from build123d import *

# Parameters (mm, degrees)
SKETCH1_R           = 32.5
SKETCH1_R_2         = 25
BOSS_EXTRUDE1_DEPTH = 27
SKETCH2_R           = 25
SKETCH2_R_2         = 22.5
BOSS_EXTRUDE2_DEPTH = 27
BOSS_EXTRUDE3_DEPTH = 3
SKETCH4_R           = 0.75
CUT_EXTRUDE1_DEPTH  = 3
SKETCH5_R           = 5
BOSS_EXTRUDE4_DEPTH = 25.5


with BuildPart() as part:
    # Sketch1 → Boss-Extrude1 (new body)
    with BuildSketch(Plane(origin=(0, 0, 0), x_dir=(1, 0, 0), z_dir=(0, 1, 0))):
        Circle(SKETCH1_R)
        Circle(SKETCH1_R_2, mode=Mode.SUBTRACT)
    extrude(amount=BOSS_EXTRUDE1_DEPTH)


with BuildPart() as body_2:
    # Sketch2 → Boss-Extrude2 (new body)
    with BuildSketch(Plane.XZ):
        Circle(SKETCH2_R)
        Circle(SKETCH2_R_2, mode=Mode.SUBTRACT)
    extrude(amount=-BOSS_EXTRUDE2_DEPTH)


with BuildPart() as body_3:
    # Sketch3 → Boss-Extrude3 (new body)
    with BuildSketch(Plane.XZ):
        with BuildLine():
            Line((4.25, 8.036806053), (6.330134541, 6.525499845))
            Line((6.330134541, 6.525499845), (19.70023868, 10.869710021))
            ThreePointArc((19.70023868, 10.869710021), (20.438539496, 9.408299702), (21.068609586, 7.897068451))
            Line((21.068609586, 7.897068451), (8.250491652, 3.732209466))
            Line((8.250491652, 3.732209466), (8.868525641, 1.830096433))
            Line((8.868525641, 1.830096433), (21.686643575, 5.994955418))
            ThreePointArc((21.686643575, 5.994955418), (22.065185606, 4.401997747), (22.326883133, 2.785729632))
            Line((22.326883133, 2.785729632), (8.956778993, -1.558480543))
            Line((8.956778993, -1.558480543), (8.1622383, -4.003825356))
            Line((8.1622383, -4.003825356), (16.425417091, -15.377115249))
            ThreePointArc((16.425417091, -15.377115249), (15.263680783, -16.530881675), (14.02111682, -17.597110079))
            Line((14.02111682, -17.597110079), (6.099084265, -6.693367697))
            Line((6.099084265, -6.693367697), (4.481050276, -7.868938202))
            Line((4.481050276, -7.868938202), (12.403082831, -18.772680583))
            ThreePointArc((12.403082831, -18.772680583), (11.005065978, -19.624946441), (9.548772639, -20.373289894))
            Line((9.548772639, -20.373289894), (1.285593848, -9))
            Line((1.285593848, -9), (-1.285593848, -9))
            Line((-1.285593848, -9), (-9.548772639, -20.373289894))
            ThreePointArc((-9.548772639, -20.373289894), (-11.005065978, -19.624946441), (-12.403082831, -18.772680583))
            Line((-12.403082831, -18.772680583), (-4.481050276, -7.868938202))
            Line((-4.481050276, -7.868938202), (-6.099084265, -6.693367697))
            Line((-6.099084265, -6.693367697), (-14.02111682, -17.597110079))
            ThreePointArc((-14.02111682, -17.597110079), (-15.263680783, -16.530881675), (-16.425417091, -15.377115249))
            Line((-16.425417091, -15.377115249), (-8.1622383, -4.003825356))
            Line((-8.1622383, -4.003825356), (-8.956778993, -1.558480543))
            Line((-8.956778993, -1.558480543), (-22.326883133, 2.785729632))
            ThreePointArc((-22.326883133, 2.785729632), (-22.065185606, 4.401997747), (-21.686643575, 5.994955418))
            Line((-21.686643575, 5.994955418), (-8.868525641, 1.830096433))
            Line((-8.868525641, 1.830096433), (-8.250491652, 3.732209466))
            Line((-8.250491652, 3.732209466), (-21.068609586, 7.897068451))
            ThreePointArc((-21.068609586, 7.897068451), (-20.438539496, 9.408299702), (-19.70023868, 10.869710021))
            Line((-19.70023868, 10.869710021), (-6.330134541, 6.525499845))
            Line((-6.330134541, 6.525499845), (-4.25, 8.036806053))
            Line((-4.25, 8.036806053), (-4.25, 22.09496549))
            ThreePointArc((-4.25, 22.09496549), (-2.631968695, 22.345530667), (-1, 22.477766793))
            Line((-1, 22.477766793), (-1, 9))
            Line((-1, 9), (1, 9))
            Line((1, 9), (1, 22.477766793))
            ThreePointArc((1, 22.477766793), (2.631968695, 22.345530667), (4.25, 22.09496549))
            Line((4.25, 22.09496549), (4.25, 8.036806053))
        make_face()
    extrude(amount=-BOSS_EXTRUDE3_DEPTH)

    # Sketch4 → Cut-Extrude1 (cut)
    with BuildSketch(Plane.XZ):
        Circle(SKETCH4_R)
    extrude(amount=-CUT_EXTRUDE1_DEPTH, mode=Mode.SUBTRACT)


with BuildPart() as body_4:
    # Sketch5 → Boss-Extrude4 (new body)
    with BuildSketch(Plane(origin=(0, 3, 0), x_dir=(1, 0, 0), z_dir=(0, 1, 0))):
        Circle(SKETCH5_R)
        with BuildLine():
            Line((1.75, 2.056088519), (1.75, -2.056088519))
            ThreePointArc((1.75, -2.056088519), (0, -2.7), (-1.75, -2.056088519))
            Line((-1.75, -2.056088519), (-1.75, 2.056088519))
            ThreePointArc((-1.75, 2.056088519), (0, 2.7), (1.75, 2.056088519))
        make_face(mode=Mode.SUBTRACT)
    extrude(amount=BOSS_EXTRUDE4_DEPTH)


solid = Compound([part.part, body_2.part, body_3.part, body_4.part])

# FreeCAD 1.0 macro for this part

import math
import FreeCAD as App
import Part
import Sketcher

V = App.Vector
Q = App.Units.Quantity

doc = App.newDocument("Part")
params = doc.addObject("Spreadsheet::Sheet", "Params")
for row, (alias, value) in enumerate([
    ("sketch1_diameter", "65 mm"),
    ("sketch1_diameter2", "50 mm"),
    ("pad1_length", "27 mm"),
    ("sketch2_diameter", "50 mm"),
    ("sketch2_diameter2", "45 mm"),
    ("pad2_length", "27 mm"),
    ("sketch3_radius", "22.5 mm"),
    ("sketch3_width", "2 mm"),
    ("sketch3_length", "2 mm"),
    ("pad3_length", "3 mm"),
    ("sketch4_diameter", "1.5 mm"),
    ("pocket1_length", "3 mm"),
    ("sketch5_diameter", "10 mm"),
    ("sketch5_radius", "2.7 mm"),
    ("pad4_length", "25.5 mm"),
], start=1):
    params.set(f"A{row}", alias)
    params.set(f"B{row}", "=" + value)
    params.setAlias(f"B{row}", alias)

body = doc.addObject("PartDesign::Body", "Body")

# Sketch on XZ plane
sketch1 = body.newObject("Sketcher::SketchObject", "Sketch")
sketch1.AttachmentSupport = (doc.getObject("XZ_Plane"), [""])
sketch1.MapMode = "FlatFace"
sketch1.addGeometry(Part.Circle(V(0, 0, 0), V(0, 0, 1), 32), False)
sketch1.addGeometry(Part.Circle(V(0, 0, 0), V(0, 0, 1), 25), False)
sketch1.addConstraint(Sketcher.Constraint("Coincident", 0, 3, -1, 1))
sketch1.addConstraint(Sketcher.Constraint("Coincident", 1, 3, -1, 1))
sketch1.addConstraint(Sketcher.Constraint("Diameter", 0, 65.0))
sketch1.addConstraint(Sketcher.Constraint("Diameter", 1, 50.0))
sketch1.setExpression("Constraints[2]", "Params.sketch1_diameter")
sketch1.setExpression("Constraints[3]", "Params.sketch1_diameter2")
pad1 = body.newObject("PartDesign::Pad", "Pad")
pad1.Profile = sketch1
pad1.setExpression("Length", "Params.pad1_length")
pad1.Reversed = True
body2 = doc.addObject("PartDesign::Body", "Body001")

# Sketch on XZ plane
sketch2 = body2.newObject("Sketcher::SketchObject", "Sketch001")
sketch2.AttachmentSupport = (doc.getObject("XZ_Plane001"), [""])
sketch2.MapMode = "FlatFace"
sketch2.addGeometry(Part.Circle(V(0, 0, 0), V(0, 0, 1), 25), False)
sketch2.addGeometry(Part.Circle(V(0, 0, 0), V(0, 0, 1), 22), False)
sketch2.addConstraint(Sketcher.Constraint("Coincident", 0, 3, -1, 1))
sketch2.addConstraint(Sketcher.Constraint("Coincident", 1, 3, -1, 1))
sketch2.addConstraint(Sketcher.Constraint("Diameter", 0, 50.0))
sketch2.addConstraint(Sketcher.Constraint("Diameter", 1, 45.0))
sketch2.setExpression("Constraints[2]", "Params.sketch2_diameter")
sketch2.setExpression("Constraints[3]", "Params.sketch2_diameter2")
pad2 = body2.newObject("PartDesign::Pad", "Pad001")
pad2.Profile = sketch2
pad2.setExpression("Length", "Params.pad2_length")
pad2.Reversed = True
body3 = doc.addObject("PartDesign::Body", "Body002")

# Sketch on XZ plane
sketch3 = body3.newObject("Sketcher::SketchObject", "Sketch002")
sketch3.AttachmentSupport = (doc.getObject("XZ_Plane002"), [""])
sketch3.MapMode = "FlatFace"
sketch3.addGeometry(Part.LineSegment(V(6.3, 6.5, 0), V(4.2, 8, 0)), False)
sketch3.addGeometry(Part.LineSegment(V(4.2, 8, 0), V(4.2, 22.1, 0)), False)
sketch3.addGeometry(Part.ArcOfCircle(Part.Circle(V(0, 0, 0), V(0, 0, 1), 22.5), math.radians(79.11), math.radians(87.45)), False)
sketch3.addGeometry(Part.LineSegment(V(1, 22.5, 0), V(1, 9, 0)), False)
sketch3.addGeometry(Part.LineSegment(V(1, 9, 0), V(-1, 9, 0)), False)
sketch3.addGeometry(Part.LineSegment(V(-1, 9, 0), V(-1, 22.5, 0)), False)
sketch3.addGeometry(Part.ArcOfCircle(Part.Circle(V(0, 0, 0), V(0, 0, 1), 22.5), math.radians(92.55), math.radians(100.89)), False)
sketch3.addGeometry(Part.LineSegment(V(-4.2, 22.1, 0), V(-4.2, 8, 0)), False)
sketch3.addGeometry(Part.LineSegment(V(-4.2, 8, 0), V(-6.3, 6.5, 0)), False)
sketch3.addGeometry(Part.LineSegment(V(-6.3, 6.5, 0), V(-19.7, 10.9, 0)), False)
sketch3.addGeometry(Part.ArcOfCircle(Part.Circle(V(0, 0, 0), V(0, 0, 1), 22.5), math.radians(151.11), math.radians(159.45)), False)
sketch3.addGeometry(Part.LineSegment(V(-21.1, 7.9, 0), V(-8.3, 3.7, 0)), False)
sketch3.addGeometry(Part.LineSegment(V(-8.3, 3.7, 0), V(-8.9, 1.8, 0)), False)
sketch3.addGeometry(Part.LineSegment(V(-8.9, 1.8, 0), V(-21.7, 6, 0)), False)
sketch3.addGeometry(Part.ArcOfCircle(Part.Circle(V(0, 0, 0), V(0, 0, 1), 22.5), math.radians(164.55), math.radians(172.89)), False)
sketch3.addGeometry(Part.LineSegment(V(-22.3, 2.8, 0), V(-9, -1.6, 0)), False)
sketch3.addGeometry(Part.LineSegment(V(-9, -1.6, 0), V(-8.2, -4, 0)), False)
sketch3.addGeometry(Part.LineSegment(V(-8.2, -4, 0), V(-16.4, -15.4, 0)), False)
sketch3.addGeometry(Part.ArcOfCircle(Part.Circle(V(0, 0, 0), V(0, 0, 1), 22.5), math.radians(-136.89), math.radians(-128.55)), False)
sketch3.addGeometry(Part.LineSegment(V(-14, -17.6, 0), V(-6.1, -6.7, 0)), False)
sketch3.addGeometry(Part.LineSegment(V(-6.1, -6.7, 0), V(-4.5, -7.9, 0)), False)
sketch3.addGeometry(Part.LineSegment(V(-4.5, -7.9, 0), V(-12.4, -18.8, 0)), False)
sketch3.addGeometry(Part.ArcOfCircle(Part.Circle(V(0, 0, 0), V(0, 0, 1), 22.5), math.radians(-123.45), math.radians(-115.11)), False)
sketch3.addGeometry(Part.LineSegment(V(-9.5, -20.4, 0), V(-1.3, -9, 0)), False)
sketch3.addGeometry(Part.LineSegment(V(-1.3, -9, 0), V(1.3, -9, 0)), False)
sketch3.addGeometry(Part.LineSegment(V(1.3, -9, 0), V(9.5, -20.4, 0)), False)
sketch3.addGeometry(Part.ArcOfCircle(Part.Circle(V(0, 0, 0), V(0, 0, 1), 22.5), math.radians(-64.89), math.radians(-56.55)), False)
sketch3.addGeometry(Part.LineSegment(V(12.4, -18.8, 0), V(4.5, -7.9, 0)), False)
sketch3.addGeometry(Part.LineSegment(V(4.5, -7.9, 0), V(6.1, -6.7, 0)), False)
sketch3.addGeometry(Part.LineSegment(V(6.1, -6.7, 0), V(14, -17.6, 0)), False)
sketch3.addGeometry(Part.ArcOfCircle(Part.Circle(V(0, 0, 0), V(0, 0, 1), 22.5), math.radians(-51.45), math.radians(-43.11)), False)
sketch3.addGeometry(Part.LineSegment(V(16.4, -15.4, 0), V(8.2, -4, 0)), False)
sketch3.addGeometry(Part.LineSegment(V(8.2, -4, 0), V(9, -1.6, 0)), False)
sketch3.addGeometry(Part.LineSegment(V(9, -1.6, 0), V(22.3, 2.8, 0)), False)
sketch3.addGeometry(Part.ArcOfCircle(Part.Circle(V(0, 0, 0), V(0, 0, 1), 22.5), math.radians(7.11), math.radians(15.45)), False)
sketch3.addGeometry(Part.LineSegment(V(21.7, 6, 0), V(8.9, 1.8, 0)), False)
sketch3.addGeometry(Part.LineSegment(V(8.9, 1.8, 0), V(8.3, 3.7, 0)), False)
sketch3.addGeometry(Part.LineSegment(V(8.3, 3.7, 0), V(21.1, 7.9, 0)), False)
sketch3.addGeometry(Part.ArcOfCircle(Part.Circle(V(0, 0, 0), V(0, 0, 1), 22.5), math.radians(20.55), math.radians(28.89)), False)
sketch3.addGeometry(Part.LineSegment(V(19.7, 10.9, 0), V(6.3, 6.5, 0)), False)
sketch3.addConstraint(Sketcher.Constraint("Coincident", 0, 2, 1, 1))
sketch3.addConstraint(Sketcher.Constraint("Coincident", 1, 2, 2, 1))
sketch3.addConstraint(Sketcher.Constraint("Coincident", 2, 2, 3, 1))
sketch3.addConstraint(Sketcher.Constraint("Coincident", 3, 2, 4, 1))
sketch3.addConstraint(Sketcher.Constraint("Coincident", 4, 2, 5, 1))
sketch3.addConstraint(Sketcher.Constraint("Coincident", 5, 2, 6, 1))
sketch3.addConstraint(Sketcher.Constraint("Coincident", 6, 2, 7, 1))
sketch3.addConstraint(Sketcher.Constraint("Coincident", 7, 2, 8, 1))
sketch3.addConstraint(Sketcher.Constraint("Coincident", 8, 2, 9, 1))
sketch3.addConstraint(Sketcher.Constraint("Coincident", 9, 2, 10, 1))
sketch3.addConstraint(Sketcher.Constraint("Coincident", 10, 2, 11, 1))
sketch3.addConstraint(Sketcher.Constraint("Coincident", 11, 2, 12, 1))
sketch3.addConstraint(Sketcher.Constraint("Coincident", 12, 2, 13, 1))
sketch3.addConstraint(Sketcher.Constraint("Coincident", 13, 2, 14, 1))
sketch3.addConstraint(Sketcher.Constraint("Coincident", 14, 2, 15, 1))
sketch3.addConstraint(Sketcher.Constraint("Coincident", 15, 2, 16, 1))
sketch3.addConstraint(Sketcher.Constraint("Coincident", 16, 2, 17, 1))
sketch3.addConstraint(Sketcher.Constraint("Coincident", 17, 2, 18, 1))
sketch3.addConstraint(Sketcher.Constraint("Coincident", 18, 2, 19, 1))
sketch3.addConstraint(Sketcher.Constraint("Coincident", 19, 2, 20, 1))
sketch3.addConstraint(Sketcher.Constraint("Coincident", 20, 2, 21, 1))
sketch3.addConstraint(Sketcher.Constraint("Coincident", 21, 2, 22, 1))
sketch3.addConstraint(Sketcher.Constraint("Coincident", 22, 2, 23, 1))
sketch3.addConstraint(Sketcher.Constraint("Coincident", 23, 2, 24, 1))
sketch3.addConstraint(Sketcher.Constraint("Coincident", 24, 2, 25, 1))
sketch3.addConstraint(Sketcher.Constraint("Coincident", 25, 2, 26, 1))
sketch3.addConstraint(Sketcher.Constraint("Coincident", 26, 2, 27, 1))
sketch3.addConstraint(Sketcher.Constraint("Coincident", 27, 2, 28, 1))
sketch3.addConstraint(Sketcher.Constraint("Coincident", 28, 2, 29, 1))
sketch3.addConstraint(Sketcher.Constraint("Coincident", 29, 2, 30, 1))
sketch3.addConstraint(Sketcher.Constraint("Coincident", 30, 2, 31, 1))
sketch3.addConstraint(Sketcher.Constraint("Coincident", 31, 2, 32, 1))
sketch3.addConstraint(Sketcher.Constraint("Coincident", 32, 2, 33, 1))
sketch3.addConstraint(Sketcher.Constraint("Coincident", 33, 2, 34, 1))
sketch3.addConstraint(Sketcher.Constraint("Coincident", 34, 2, 35, 1))
sketch3.addConstraint(Sketcher.Constraint("Coincident", 35, 2, 36, 1))
sketch3.addConstraint(Sketcher.Constraint("Coincident", 36, 2, 37, 1))
sketch3.addConstraint(Sketcher.Constraint("Coincident", 37, 2, 38, 1))
sketch3.addConstraint(Sketcher.Constraint("Coincident", 38, 2, 39, 1))
sketch3.addConstraint(Sketcher.Constraint("Coincident", 39, 2, 0, 1))
sketch3.addConstraint(Sketcher.Constraint("Vertical", 1))
sketch3.addConstraint(Sketcher.Constraint("Vertical", 3))
sketch3.addConstraint(Sketcher.Constraint("Horizontal", 4))
sketch3.addConstraint(Sketcher.Constraint("Vertical", 5))
sketch3.addConstraint(Sketcher.Constraint("Vertical", 7))
sketch3.addConstraint(Sketcher.Constraint("Horizontal", 24))
sketch3.addConstraint(Sketcher.Constraint("Coincident", 2, 3, -1, 1))
sketch3.addConstraint(Sketcher.Constraint("Coincident", 6, 3, -1, 1))
sketch3.addConstraint(Sketcher.Constraint("Coincident", 10, 3, -1, 1))
sketch3.addConstraint(Sketcher.Constraint("Coincident", 14, 3, -1, 1))
sketch3.addConstraint(Sketcher.Constraint("Coincident", 18, 3, -1, 1))
sketch3.addConstraint(Sketcher.Constraint("Coincident", 22, 3, -1, 1))
sketch3.addConstraint(Sketcher.Constraint("Coincident", 26, 3, -1, 1))
sketch3.addConstraint(Sketcher.Constraint("Coincident", 30, 3, -1, 1))
sketch3.addConstraint(Sketcher.Constraint("Coincident", 34, 3, -1, 1))
sketch3.addConstraint(Sketcher.Constraint("Coincident", 38, 3, -1, 1))
sketch3.addConstraint(Sketcher.Constraint("Equal", 2, 6))
sketch3.addConstraint(Sketcher.Constraint("Equal", 6, 10))
sketch3.addConstraint(Sketcher.Constraint("Equal", 10, 14))
sketch3.addConstraint(Sketcher.Constraint("Equal", 14, 18))
sketch3.addConstraint(Sketcher.Constraint("Equal", 18, 22))
sketch3.addConstraint(Sketcher.Constraint("Equal", 22, 26))
sketch3.addConstraint(Sketcher.Constraint("Equal", 26, 30))
sketch3.addConstraint(Sketcher.Constraint("Equal", 30, 34))
sketch3.addConstraint(Sketcher.Constraint("Equal", 34, 38))
sketch3.addConstraint(Sketcher.Constraint("Symmetric", 0, 2, 7, 2, -2))
sketch3.addConstraint(Sketcher.Constraint("Symmetric", 20, 2, 27, 2, -2))
sketch3.addConstraint(Sketcher.Constraint("Symmetric", 19, 2, 28, 2, -2))
sketch3.addConstraint(Sketcher.Constraint("Symmetric", 16, 2, 31, 2, -2))
sketch3.addConstraint(Sketcher.Constraint("Symmetric", 15, 2, 32, 2, -2))
sketch3.addConstraint(Sketcher.Constraint("Symmetric", 12, 2, 35, 2, -2))
sketch3.addConstraint(Sketcher.Constraint("Symmetric", 11, 2, 36, 2, -2))
sketch3.addConstraint(Sketcher.Constraint("Symmetric", 8, 2, 39, 2, -2))
sketch3.addConstraint(Sketcher.Constraint("Parallel", 9, 11))
sketch3.addConstraint(Sketcher.Constraint("Perpendicular", 11, 12))
sketch3.addConstraint(Sketcher.Constraint("Perpendicular", 12, 13))
sketch3.addConstraint(Sketcher.Constraint("Parallel", 13, 15))
sketch3.addConstraint(Sketcher.Constraint("Perpendicular", 0, 17))
sketch3.addConstraint(Sketcher.Constraint("Parallel", 17, 19))
sketch3.addConstraint(Sketcher.Constraint("Perpendicular", 19, 20))
sketch3.addConstraint(Sketcher.Constraint("Perpendicular", 20, 21))
sketch3.addConstraint(Sketcher.Constraint("Parallel", 21, 23))
sketch3.addConstraint(Sketcher.Constraint("Perpendicular", 8, 25))
sketch3.addConstraint(Sketcher.Constraint("Parallel", 25, 27))
sketch3.addConstraint(Sketcher.Constraint("Perpendicular", 28, 29))
sketch3.addConstraint(Sketcher.Constraint("Parallel", 29, 31))
sketch3.addConstraint(Sketcher.Constraint("Perpendicular", 15, 32))
sketch3.addConstraint(Sketcher.Constraint("Perpendicular", 16, 33))
sketch3.addConstraint(Sketcher.Constraint("Parallel", 33, 35))
sketch3.addConstraint(Sketcher.Constraint("Perpendicular", 36, 37))
sketch3.addConstraint(Sketcher.Constraint("Parallel", 37, 39))
sketch3.addConstraint(Sketcher.Constraint("Horizontal", 2, 2, 5, 2))
sketch3.addConstraint(Sketcher.Constraint("Horizontal", 22, 2, 25, 2))
sketch3.addConstraint(Sketcher.Constraint("Equal", 11, 13))
sketch3.addConstraint(Sketcher.Constraint("Equal", 9, 15))
sketch3.addConstraint(Sketcher.Constraint("Equal", 8, 16))
sketch3.addConstraint(Sketcher.Constraint("Equal", 15, 17))
sketch3.addConstraint(Sketcher.Constraint("Equal", 13, 19))
sketch3.addConstraint(Sketcher.Constraint("Equal", 12, 20))
sketch3.addConstraint(Sketcher.Constraint("Equal", 19, 21))
sketch3.addConstraint(Sketcher.Constraint("Equal", 17, 23))
sketch3.addConstraint(Sketcher.Constraint("Radius", 2, 22.5))
sketch3.addConstraint(Sketcher.Constraint("DistanceX", 4, 2, 4, 1, 2.0))
sketch3.addConstraint(Sketcher.Constraint("Angle", 0, Q("144 deg")))
sketch3.addConstraint(Sketcher.Constraint("Angle", 9, Q("162 deg")))
sketch3.addConstraint(Sketcher.Constraint("Distance", 12, 2.0))
sketch3.addConstraint(Sketcher.Constraint("DistanceY", -1, 1, 3, 2, 9.0))
sketch3.addConstraint(Sketcher.Constraint("DistanceY", 23, 2, -1, 1, 9.0))
sketch3.addConstraint(Sketcher.Constraint("DistanceX", 6, 2, 1, 2, 8.5))
sketch3.addConstraint(Sketcher.Constraint("DistanceX", 21, 2, 19, 2, 6.303999))
sketch3.addConstraint(Sketcher.Constraint("DistanceY", 1, 1, 1, 2, 14.058159))
sketch3.addConstraint(Sketcher.Constraint("DistanceY", -1, 1, 8, 2, 6.5255))
sketch3.setExpression("Constraints[101]", "Params.sketch3_radius")
sketch3.setExpression("Constraints[102]", "Params.sketch3_width")
sketch3.setExpression("Constraints[105]", "Params.sketch3_length")
pad3 = body3.newObject("PartDesign::Pad", "Pad002")
pad3.Profile = sketch3
pad3.setExpression("Length", "Params.pad3_length")
pad3.Reversed = True

# Sketch on XZ plane
sketch4 = body3.newObject("Sketcher::SketchObject", "Sketch003")
sketch4.AttachmentSupport = (doc.getObject("XZ_Plane002"), [""])
sketch4.MapMode = "FlatFace"
sketch4.addGeometry(Part.Circle(V(0, 0, 0), V(0, 0, 1), 0.8), False)
sketch4.addConstraint(Sketcher.Constraint("Coincident", 0, 3, -1, 1))
sketch4.addConstraint(Sketcher.Constraint("Diameter", 0, 1.5))
sketch4.setExpression("Constraints[1]", "Params.sketch4_diameter")
pocket1 = body3.newObject("PartDesign::Pocket", "Pocket")
pocket1.Profile = sketch4
pocket1.setExpression("Length", "Params.pocket1_length")
body4 = doc.addObject("PartDesign::Body", "Body003")

# Sketch on XZ plane
sketch5 = body4.newObject("Sketcher::SketchObject", "Sketch004")
sketch5.AttachmentSupport = (doc.getObject("XZ_Plane003"), [""])
sketch5.MapMode = "FlatFace"
sketch5.AttachmentOffset = App.Placement(V(0, 0, -3), App.Rotation())
sketch5.addGeometry(Part.Circle(V(0, 0, 0), V(0, 0, 1), 5), False)
sketch5.addGeometry(Part.ArcOfCircle(Part.Circle(V(0, 0, 0), V(0, 0, 1), 2.7), math.radians(-130), math.radians(-50)), False)
sketch5.addGeometry(Part.LineSegment(V(1.8, -2.1, 0), V(1.8, 2.1, 0)), False)
sketch5.addGeometry(Part.ArcOfCircle(Part.Circle(V(0, 0, 0), V(0, 0, 1), 2.7), math.radians(50), math.radians(130)), False)
sketch5.addGeometry(Part.LineSegment(V(-1.8, 2.1, 0), V(-1.8, -2.1, 0)), False)
sketch5.addConstraint(Sketcher.Constraint("Coincident", 1, 2, 2, 1))
sketch5.addConstraint(Sketcher.Constraint("Coincident", 2, 2, 3, 1))
sketch5.addConstraint(Sketcher.Constraint("Coincident", 3, 2, 4, 1))
sketch5.addConstraint(Sketcher.Constraint("Coincident", 4, 2, 1, 1))
sketch5.addConstraint(Sketcher.Constraint("Vertical", 2))
sketch5.addConstraint(Sketcher.Constraint("Vertical", 4))
sketch5.addConstraint(Sketcher.Constraint("Coincident", 0, 3, -1, 1))
sketch5.addConstraint(Sketcher.Constraint("Coincident", 1, 3, -1, 1))
sketch5.addConstraint(Sketcher.Constraint("Coincident", 3, 3, -1, 1))
sketch5.addConstraint(Sketcher.Constraint("Equal", 1, 3))
sketch5.addConstraint(Sketcher.Constraint("Horizontal", 2, 2, 3, 2))
sketch5.addConstraint(Sketcher.Constraint("Diameter", 0, 10.0))
sketch5.addConstraint(Sketcher.Constraint("Radius", 1, 2.7))
sketch5.addConstraint(Sketcher.Constraint("DistanceX", 3, 2, 2, 2, 3.5))
sketch5.setExpression("Constraints[11]", "Params.sketch5_diameter")
sketch5.setExpression("Constraints[12]", "Params.sketch5_radius")
pad4 = body4.newObject("PartDesign::Pad", "Pad003")
pad4.Profile = sketch5
pad4.setExpression("Length", "Params.pad4_length")
pad4.Reversed = True

doc.recompute()
